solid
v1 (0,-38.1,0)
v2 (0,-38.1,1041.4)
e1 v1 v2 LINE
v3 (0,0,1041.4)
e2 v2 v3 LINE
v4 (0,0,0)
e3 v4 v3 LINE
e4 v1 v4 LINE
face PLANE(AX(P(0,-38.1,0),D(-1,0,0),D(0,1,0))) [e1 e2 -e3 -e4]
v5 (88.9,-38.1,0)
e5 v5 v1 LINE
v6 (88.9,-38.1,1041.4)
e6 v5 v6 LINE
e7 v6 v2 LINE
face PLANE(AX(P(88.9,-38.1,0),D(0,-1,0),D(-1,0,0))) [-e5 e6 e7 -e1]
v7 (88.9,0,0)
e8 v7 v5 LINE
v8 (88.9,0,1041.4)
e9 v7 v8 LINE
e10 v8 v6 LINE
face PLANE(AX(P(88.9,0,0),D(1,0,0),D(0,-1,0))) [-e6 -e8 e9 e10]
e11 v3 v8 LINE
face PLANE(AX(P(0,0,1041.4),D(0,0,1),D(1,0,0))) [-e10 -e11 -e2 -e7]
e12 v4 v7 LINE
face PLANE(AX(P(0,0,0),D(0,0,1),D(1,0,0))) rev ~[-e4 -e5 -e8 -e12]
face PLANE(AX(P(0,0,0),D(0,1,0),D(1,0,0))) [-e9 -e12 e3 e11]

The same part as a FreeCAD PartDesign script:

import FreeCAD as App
import Part
import Sketcher

V = App.Vector
Q = App.Units.Quantity


def add_polygon(sketch, points):
    """Adds a closed chain of lines whose ends are joined by coincident constraints."""
    first, n = sketch.GeometryCount, len(points)
    for a, b in zip(points, points[1:] + points[:1]):
        sketch.addGeometry(Part.LineSegment(App.Vector(*a, 0), App.Vector(*b, 0)), False)
    for i in range(n):
        sketch.addConstraint(Sketcher.Constraint("Coincident", first + i, 2, first + (i + 1) % n, 1))

doc = App.newDocument("Part")
body = doc.addObject("PartDesign::Body", "Body")

# Sketch on XY plane
sketch1 = body.newObject("Sketcher::SketchObject", "Sketch")
sketch1.AttachmentSupport = (doc.getObject("XY_Plane"), [""])
sketch1.MapMode = "FlatFace"
add_polygon(sketch1, [(89, 0), (0, 0), (0, -38), (89, -38)])  # lines 0-3
sketch1.addConstraint([
    Sketcher.Constraint("Horizontal", 0),
    Sketcher.Constraint("Vertical", 1),
    Sketcher.Constraint("Horizontal", 2),
    Sketcher.Constraint("Vertical", 3),
    Sketcher.Constraint("Coincident", 0, 2, -1, 1),
    Sketcher.Constraint("DistanceX", 0, 2, 0, 1, Q("3.5 in")),
    Sketcher.Constraint("DistanceY", 1, 2, 1, 1, Q("1.5 in")),
])
pad1 = body.newObject("PartDesign::Pad", "Pad")
pad1.Profile = sketch1
pad1.Length = Q("41 in")

doc.recompute()
